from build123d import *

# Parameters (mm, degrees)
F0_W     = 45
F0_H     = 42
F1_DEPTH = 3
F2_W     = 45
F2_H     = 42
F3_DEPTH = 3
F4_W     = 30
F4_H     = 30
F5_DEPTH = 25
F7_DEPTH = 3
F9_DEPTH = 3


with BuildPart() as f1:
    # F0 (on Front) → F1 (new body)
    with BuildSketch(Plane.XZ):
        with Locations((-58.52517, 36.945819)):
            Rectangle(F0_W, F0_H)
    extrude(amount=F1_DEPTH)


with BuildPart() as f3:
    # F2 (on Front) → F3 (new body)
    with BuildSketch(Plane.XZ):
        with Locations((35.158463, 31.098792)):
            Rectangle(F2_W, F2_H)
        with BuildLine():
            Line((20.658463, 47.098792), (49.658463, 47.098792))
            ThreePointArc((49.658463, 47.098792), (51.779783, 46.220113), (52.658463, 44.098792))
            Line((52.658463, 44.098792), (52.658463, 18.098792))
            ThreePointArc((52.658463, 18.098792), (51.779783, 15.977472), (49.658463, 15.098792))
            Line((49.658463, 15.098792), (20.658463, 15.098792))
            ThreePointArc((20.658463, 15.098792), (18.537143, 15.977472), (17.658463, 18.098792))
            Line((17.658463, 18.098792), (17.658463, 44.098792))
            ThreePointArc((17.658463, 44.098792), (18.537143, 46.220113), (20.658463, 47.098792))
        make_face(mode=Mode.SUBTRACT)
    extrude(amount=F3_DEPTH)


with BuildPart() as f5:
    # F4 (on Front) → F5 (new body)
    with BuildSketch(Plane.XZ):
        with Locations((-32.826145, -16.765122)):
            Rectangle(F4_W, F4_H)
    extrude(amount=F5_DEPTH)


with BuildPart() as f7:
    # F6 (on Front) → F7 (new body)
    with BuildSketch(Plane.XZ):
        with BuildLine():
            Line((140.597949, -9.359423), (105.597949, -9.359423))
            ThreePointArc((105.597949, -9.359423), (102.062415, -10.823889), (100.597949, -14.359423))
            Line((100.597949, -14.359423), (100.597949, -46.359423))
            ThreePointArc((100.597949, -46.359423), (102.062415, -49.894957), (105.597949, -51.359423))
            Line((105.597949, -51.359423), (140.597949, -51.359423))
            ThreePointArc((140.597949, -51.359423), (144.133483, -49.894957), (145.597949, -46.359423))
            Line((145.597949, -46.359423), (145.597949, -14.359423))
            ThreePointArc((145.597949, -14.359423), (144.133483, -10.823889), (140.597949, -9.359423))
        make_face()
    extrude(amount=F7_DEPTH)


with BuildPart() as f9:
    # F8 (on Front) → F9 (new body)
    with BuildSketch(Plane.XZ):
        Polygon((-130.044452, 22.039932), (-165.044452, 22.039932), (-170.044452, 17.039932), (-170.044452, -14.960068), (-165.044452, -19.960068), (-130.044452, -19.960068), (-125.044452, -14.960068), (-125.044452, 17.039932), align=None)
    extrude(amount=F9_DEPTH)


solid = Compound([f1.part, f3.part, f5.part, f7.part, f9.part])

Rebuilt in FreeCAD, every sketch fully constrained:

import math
import FreeCAD as App
import Part
import Sketcher
from FreeCAD import Vector
Q = App.Units.Quantity


def add_polygon(sketch, points):
    """Adds a closed chain of lines whose ends are joined by coincident constraints."""
    first, n = sketch.GeometryCount, len(points)
    for a, b in zip(points, points[1:] + points[:1]):
        sketch.addGeometry(Part.LineSegment(App.Vector(*a, 0), App.Vector(*b, 0)), False)
    for i in range(n):
        sketch.addConstraint(Sketcher.Constraint("Coincident", first + i, 2, first + (i + 1) % n, 1))

doc = App.newDocument("Part")
params = doc.addObject("Spreadsheet::Sheet", "Params")
for row, (alias, value) in enumerate([
    ("sketch1_width", "45 mm"),
    ("sketch1_height", "42 mm"),
    ("pad1_length", "3 mm"),
    ("sketch2_radius", "2.999999 mm"),
    ("sketch2_width", "45 mm"),
    ("sketch2_width2", "29 mm"),
    ("sketch2_height", "42 mm"),
    ("sketch2_height2", "26 mm"),
    ("pad2_length", "3 mm"),
    ("sketch3_width", "30 mm"),
    ("pad3_length", "25 mm"),
    ("sketch4_radius", "5 mm"),
    ("sketch4_width", "35 mm"),
    ("sketch4_height", "32 mm"),
    ("pad4_length", "3 mm"),
    ("sketch5_width", "35 mm"),
    ("sketch5_height", "32 mm"),
    ("pad5_length", "3 mm"),
], start=1):
    params.set(f"A{row}", alias)
    params.set(f"B{row}", "=" + value)
    params.setAlias(f"B{row}", alias)

body = doc.addObject("PartDesign::Body", "Body")

# Sketch on XZ plane
sketch1 = body.newObject("Sketcher::SketchObject", "Sketch")
sketch1.AttachmentSupport = (doc.getObject("XZ_Plane"), [""])
sketch1.MapMode = "FlatFace"
add_polygon(sketch1, [(-81, 58), (-81, 16), (-36, 16), (-36, 58)])  # lines 0-3
sketch1.addConstraint([
    Sketcher.Constraint("Vertical", 0),
    Sketcher.Constraint("Horizontal", 1),
    Sketcher.Constraint("Vertical", 2),
    Sketcher.Constraint("Horizontal", 3),
    Sketcher.Constraint("DistanceX", 1, 1, 1, 2, Q("45 mm")),
    Sketcher.Constraint("DistanceY", 0, 2, 0, 1, Q("42 mm")),
    Sketcher.Constraint("DistanceX", 0, 2, -1, 1, Q("81.02517 mm")),
    Sketcher.Constraint("DistanceY", -1, 1, 0, 2, Q("15.945819 mm")),
])
sketch1.setExpression("Constraints[8]", "Params.sketch1_width")
sketch1.setExpression("Constraints[9]", "Params.sketch1_height")
pad1 = body.newObject("PartDesign::Pad", "Pad")
pad1.Profile = sketch1
pad1.setExpression("Length", "Params.pad1_length")
body2 = doc.addObject("PartDesign::Body", "Body001")

# Sketch on XZ plane
sketch2 = body2.newObject("Sketcher::SketchObject", "Sketch001")
sketch2.AttachmentSupport = (doc.getObject("XZ_Plane001"), [""])
sketch2.MapMode = "FlatFace"
add_polygon(sketch2, [(12.7, 52.1), (12.7, 10.1), (57.7, 10.1), (57.7, 52.1)])  # lines 0-3
sketch2.addGeometry(Part.ArcOfCircle(Part.Circle(Vector(20.7, 44.1, 0), Vector(0, 0, 1), 3), math.radians(90), math.radians(180)), False)  # 4
sketch2.addGeometry(Part.LineSegment(Vector(20.7, 47.1, 0), Vector(49.7, 47.1, 0)), False)  # 5
sketch2.addGeometry(Part.ArcOfCircle(Part.Circle(Vector(49.7, 44.1, 0), Vector(0, 0, 1), 3), math.radians(0), math.radians(90)), False)  # 6
sketch2.addGeometry(Part.LineSegment(Vector(52.7, 44.1, 0), Vector(52.7, 18.1, 0)), False)  # 7
sketch2.addGeometry(Part.ArcOfCircle(Part.Circle(Vector(49.7, 18.1, 0), Vector(0, 0, 1), 3), math.radians(-90), math.radians(0)), False)  # 8
sketch2.addGeometry(Part.LineSegment(Vector(49.7, 15.1, 0), Vector(20.7, 15.1, 0)), False)  # 9
sketch2.addGeometry(Part.ArcOfCircle(Part.Circle(Vector(20.7, 18.1, 0), Vector(0, 0, 1), 3), math.radians(-180), math.radians(-90)), False)  # 10
sketch2.addGeometry(Part.LineSegment(Vector(17.7, 18.1, 0), Vector(17.7, 44.1, 0)), False)  # 11
sketch2.addConstraint([
    Sketcher.Constraint("Tangent", 4, 1, 5, 1),
    Sketcher.Constraint("Tangent", 5, 2, 6, 2),
    Sketcher.Constraint("Tangent", 6, 1, 7, 1),
    Sketcher.Constraint("Tangent", 7, 2, 8, 2),
    Sketcher.Constraint("Tangent", 8, 1, 9, 1),
    Sketcher.Constraint("Tangent", 9, 2, 10, 2),
    Sketcher.Constraint("Tangent", 10, 1, 11, 1),
    Sketcher.Constraint("Tangent", 11, 2, 4, 2),
    Sketcher.Constraint("Vertical", 0),
    Sketcher.Constraint("Horizontal", 1),
    Sketcher.Constraint("Vertical", 2),
    Sketcher.Constraint("Horizontal", 3),
    Sketcher.Constraint("Horizontal", 5),
    Sketcher.Constraint("Vertical", 7),
    Sketcher.Constraint("Horizontal", 9),
    Sketcher.Constraint("Vertical", 11),
    Sketcher.Constraint("Equal", 4, 6),
    Sketcher.Constraint("Equal", 6, 8),
    Sketcher.Constraint("Equal", 8, 10),
    Sketcher.Constraint("Radius", 4, Q("2.999999 mm")),
    Sketcher.Constraint("DistanceX", 1, 1, 1, 2, Q("45 mm")),
    Sketcher.Constraint("DistanceX", 5, 1, 5, 2, Q("29 mm")),
    Sketcher.Constraint("DistanceY", 0, 2, 0, 1, Q("42 mm")),
    Sketcher.Constraint("DistanceY", 7, 2, 7, 1, Q("26 mm")),
    Sketcher.Constraint("DistanceX", 0, 2, 10, 3, Q("8.000001 mm")),
    Sketcher.Constraint("DistanceY", 0, 2, 10, 3, Q("8.000001 mm")),
    Sketcher.Constraint("DistanceX", -1, 1, 8, 3, Q("49.658462 mm")),
    Sketcher.Constraint("DistanceY", -1, 1, 4, 1, Q("47.098792 mm")),
])
sketch2.setExpression("Constraints[23]", "Params.sketch2_radius")
sketch2.setExpression("Constraints[24]", "Params.sketch2_width")
sketch2.setExpression("Constraints[25]", "Params.sketch2_width2")
sketch2.setExpression("Constraints[26]", "Params.sketch2_height")
sketch2.setExpression("Constraints[27]", "Params.sketch2_height2")
pad2 = body2.newObject("PartDesign::Pad", "Pad001")
pad2.Profile = sketch2
pad2.setExpression("Length", "Params.pad2_length")
body3 = doc.addObject("PartDesign::Body", "Body002")

# Sketch on XZ plane
sketch3 = body3.newObject("Sketcher::SketchObject", "Sketch002")
sketch3.AttachmentSupport = (doc.getObject("XZ_Plane002"), [""])
sketch3.MapMode = "FlatFace"
add_polygon(sketch3, [(-48, -2), (-48, -32), (-18, -32), (-18, -2)])  # lines 0-3
sketch3.addConstraint([
    Sketcher.Constraint("Vertical", 0),
    Sketcher.Constraint("Horizontal", 1),
    Sketcher.Constraint("Vertical", 2),
    Sketcher.Constraint("Horizontal", 3),
    Sketcher.Constraint("Equal", 3, 0),
    Sketcher.Constraint("DistanceX", 1, 1, 1, 2, Q("30 mm")),
    Sketcher.Constraint("DistanceX", 0, 2, -1, 1, Q("47.826145 mm")),
    Sketcher.Constraint("DistanceY", 0, 2, -1, 1, Q("31.765122 mm")),
])
sketch3.setExpression("Constraints[9]", "Params.sketch3_width")
pad3 = body3.newObject("PartDesign::Pad", "Pad002")
pad3.Profile = sketch3
pad3.setExpression("Length", "Params.pad3_length")
body4 = doc.addObject("PartDesign::Body", "Body003")

# Sketch on XZ plane
sketch4 = body4.newObject("Sketcher::SketchObject", "Sketch003")
sketch4.AttachmentSupport = (doc.getObject("XZ_Plane003"), [""])
sketch4.MapMode = "FlatFace"
sketch4.addGeometry([
    Part.LineSegment(Vector(140.6, -9.4, 0), Vector(105.6, -9.4, 0)),  # 0
    Part.ArcOfCircle(Part.Circle(Vector(105.6, -14.4, 0), Vector(0, 0, 1), 5), math.radians(90), math.radians(180)),  # 1
    Part.LineSegment(Vector(100.6, -14.4, 0), Vector(100.6, -46.4, 0)),  # 2
    Part.ArcOfCircle(Part.Circle(Vector(105.6, -46.4, 0), Vector(0, 0, 1), 5), math.radians(180), math.radians(270)),  # 3
    Part.LineSegment(Vector(105.6, -51.4, 0), Vector(140.6, -51.4, 0)),  # 4
    Part.ArcOfCircle(Part.Circle(Vector(140.6, -46.4, 0), Vector(0, 0, 1), 5), math.radians(-90), math.radians(0)),  # 5
    Part.LineSegment(Vector(145.6, -46.4, 0), Vector(145.6, -14.4, 0)),  # 6
    Part.ArcOfCircle(Part.Circle(Vector(140.6, -14.4, 0), Vector(0, 0, 1), 5), math.radians(0), math.radians(90)),  # 7
], False)
sketch4.addConstraint([
    Sketcher.Constraint("Tangent", 0, 2, 1, 1),
    Sketcher.Constraint("Tangent", 1, 2, 2, 1),
    Sketcher.Constraint("Tangent", 2, 2, 3, 1),
    Sketcher.Constraint("Tangent", 3, 2, 4, 1),
    Sketcher.Constraint("Tangent", 4, 2, 5, 1),
    Sketcher.Constraint("Tangent", 5, 2, 6, 1),
    Sketcher.Constraint("Tangent", 6, 2, 7, 1),
    Sketcher.Constraint("Tangent", 7, 2, 0, 1),
    Sketcher.Constraint("Horizontal", 0),
    Sketcher.Constraint("Vertical", 2),
    Sketcher.Constraint("Horizontal", 4),
    Sketcher.Constraint("Vertical", 6),
    Sketcher.Constraint("Equal", 1, 3),
    Sketcher.Constraint("Equal", 3, 5),
    Sketcher.Constraint("Equal", 5, 7),
    Sketcher.Constraint("Radius", 1, Q("5 mm")),
    Sketcher.Constraint("DistanceX", 0, 2, 0, 1, Q("35 mm")),
    Sketcher.Constraint("DistanceY", 2, 2, 2, 1, Q("32 mm")),
    Sketcher.Constraint("DistanceX", -1, 1, 1, 3, Q("105.597949 mm")),
    Sketcher.Constraint("DistanceY", 1, 3, -1, 1, Q("14.359423 mm")),
])
sketch4.setExpression("Constraints[15]", "Params.sketch4_radius")
sketch4.setExpression("Constraints[16]", "Params.sketch4_width")
sketch4.setExpression("Constraints[17]", "Params.sketch4_height")
pad4 = body4.newObject("PartDesign::Pad", "Pad003")
pad4.Profile = sketch4
pad4.setExpression("Length", "Params.pad4_length")
body5 = doc.addObject("PartDesign::Body", "Body004")

# Sketch on XZ plane
sketch5 = body5.newObject("Sketcher::SketchObject", "Sketch004")
sketch5.AttachmentSupport = (doc.getObject("XZ_Plane004"), [""])
sketch5.MapMode = "FlatFace"
add_polygon(sketch5, [(-130, 22), (-165, 22), (-170, 17), (-170, -15), (-165, -20), (-130, -20), (-125, -15), (-125, 17)])  # lines 0-7
sketch5.addConstraint([
    Sketcher.Constraint("Horizontal", 0),
    Sketcher.Constraint("Vertical", 2),
    Sketcher.Constraint("Horizontal", 4),
    Sketcher.Constraint("Vertical", 6),
    Sketcher.Constraint("Perpendicular", 1, 3),
    Sketcher.Constraint("Perpendicular", 3, 5),
    Sketcher.Constraint("Perpendicular", 5, 7),
    Sketcher.Constraint("Horizontal", 2, 2, 5, 2),
    Sketcher.Constraint("Horizontal", 1, 2, 6, 2),
    Sketcher.Constraint("Vertical", 0, 2, 3, 2),
    Sketcher.Constraint("Vertical", 4, 2, 7, 2),
    Sketcher.Constraint("DistanceX", 0, 2, 0, 1, Q("35 mm")),
    Sketcher.Constraint("DistanceY", 2, 2, 2, 1, Q("32 mm")),
    Sketcher.Constraint("DistanceX", 1, 2, 0, 2, Q("5 mm")),
    Sketcher.Constraint("DistanceX", 0, 2, -1, 1, Q("165.044452 mm")),
    Sketcher.Constraint("DistanceY", -1, 1, 0, 2, Q("22.039932 mm")),
])
sketch5.setExpression("Constraints[19]", "Params.sketch5_width")
sketch5.setExpression("Constraints[20]", "Params.sketch5_height")
pad5 = body5.newObject("PartDesign::Pad", "Pad004")
pad5.Profile = sketch5
pad5.setExpression("Length", "Params.pad5_length")

doc.recompute()
